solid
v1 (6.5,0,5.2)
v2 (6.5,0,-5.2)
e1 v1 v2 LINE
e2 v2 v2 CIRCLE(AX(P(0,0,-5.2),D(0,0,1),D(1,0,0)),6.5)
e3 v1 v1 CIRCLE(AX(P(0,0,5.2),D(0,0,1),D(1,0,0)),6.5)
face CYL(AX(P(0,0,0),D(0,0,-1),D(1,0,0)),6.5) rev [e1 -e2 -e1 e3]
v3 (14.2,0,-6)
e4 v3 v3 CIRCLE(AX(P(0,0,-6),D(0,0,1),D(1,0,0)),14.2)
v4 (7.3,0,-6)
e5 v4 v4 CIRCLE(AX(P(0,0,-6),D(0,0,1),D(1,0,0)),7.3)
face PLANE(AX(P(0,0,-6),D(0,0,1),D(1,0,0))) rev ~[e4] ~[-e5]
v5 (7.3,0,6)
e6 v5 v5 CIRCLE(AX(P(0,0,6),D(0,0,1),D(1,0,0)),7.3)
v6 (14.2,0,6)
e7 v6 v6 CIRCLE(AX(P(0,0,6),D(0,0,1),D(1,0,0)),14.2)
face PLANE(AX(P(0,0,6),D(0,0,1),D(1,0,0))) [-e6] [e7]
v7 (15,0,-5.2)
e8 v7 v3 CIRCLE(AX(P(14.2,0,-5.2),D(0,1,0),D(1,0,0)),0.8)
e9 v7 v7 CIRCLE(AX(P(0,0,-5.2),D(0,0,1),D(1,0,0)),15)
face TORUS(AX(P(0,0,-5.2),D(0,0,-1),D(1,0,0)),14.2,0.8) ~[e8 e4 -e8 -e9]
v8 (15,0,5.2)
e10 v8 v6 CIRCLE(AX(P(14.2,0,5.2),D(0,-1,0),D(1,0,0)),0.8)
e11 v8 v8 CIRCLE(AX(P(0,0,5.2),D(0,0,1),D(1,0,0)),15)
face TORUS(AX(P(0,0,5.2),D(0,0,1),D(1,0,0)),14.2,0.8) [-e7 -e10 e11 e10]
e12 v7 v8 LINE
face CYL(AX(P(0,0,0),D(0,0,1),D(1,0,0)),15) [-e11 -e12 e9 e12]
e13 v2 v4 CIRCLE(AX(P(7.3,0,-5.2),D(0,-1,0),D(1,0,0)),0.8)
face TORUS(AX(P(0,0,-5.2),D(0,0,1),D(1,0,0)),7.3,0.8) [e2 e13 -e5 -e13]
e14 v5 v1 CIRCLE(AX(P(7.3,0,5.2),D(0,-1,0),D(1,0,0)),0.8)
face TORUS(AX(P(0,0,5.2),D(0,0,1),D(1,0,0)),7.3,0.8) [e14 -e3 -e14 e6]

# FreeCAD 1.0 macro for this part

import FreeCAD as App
import Part
import Sketcher

V = App.Vector
Q = App.Units.Quantity


def edges_at(feature, points):
    """Names of the edges that pass closest to the given points."""
    edges = feature.Shape.Edges
    near = lambda p: min(range(len(edges)), key=lambda i: edges[i].distToShape(Part.Vertex(*p))[0])
    return sorted({f"Edge{near(p) + 1}" for p in points})

doc = App.newDocument("Part")
body = doc.addObject("PartDesign::Body", "Body")

# Sketch on XY plane
sketch1 = body.newObject("Sketcher::SketchObject", "Sketch")
sketch1.AttachmentSupport = (doc.getObject("XY_Plane"), [""])
sketch1.MapMode = "FlatFace"
sketch1.addGeometry([
    Part.Circle(V(0, 0, 0), V(0, 0, 1), 15),
    Part.Circle(V(0, 0, 0), V(0, 0, 1), 6),
], False)
sketch1.addConstraint([
    Sketcher.Constraint("Coincident", 0, 3, -1, 1),
    Sketcher.Constraint("Coincident", 1, 3, -1, 1),
    Sketcher.Constraint("Diameter", 0, Q("30 mm")),
    Sketcher.Constraint("Diameter", 1, Q("13 mm")),
])
pad1 = body.newObject("PartDesign::Pad", "Pad")
pad1.Profile = sketch1
pad1.Length = 12
pad1.Midplane = True
doc.recompute()

fillet = body.newObject("PartDesign::Fillet", "Fillet")
fillet.Base = (pad1, edges_at(pad1, [
    (-15, 0, -6),
    (-15, 0, 6),
    (-6.5, 0, -6),
    (-6.5, 0, 6),
]))
fillet.Radius = 0.8

doc.recompute()
